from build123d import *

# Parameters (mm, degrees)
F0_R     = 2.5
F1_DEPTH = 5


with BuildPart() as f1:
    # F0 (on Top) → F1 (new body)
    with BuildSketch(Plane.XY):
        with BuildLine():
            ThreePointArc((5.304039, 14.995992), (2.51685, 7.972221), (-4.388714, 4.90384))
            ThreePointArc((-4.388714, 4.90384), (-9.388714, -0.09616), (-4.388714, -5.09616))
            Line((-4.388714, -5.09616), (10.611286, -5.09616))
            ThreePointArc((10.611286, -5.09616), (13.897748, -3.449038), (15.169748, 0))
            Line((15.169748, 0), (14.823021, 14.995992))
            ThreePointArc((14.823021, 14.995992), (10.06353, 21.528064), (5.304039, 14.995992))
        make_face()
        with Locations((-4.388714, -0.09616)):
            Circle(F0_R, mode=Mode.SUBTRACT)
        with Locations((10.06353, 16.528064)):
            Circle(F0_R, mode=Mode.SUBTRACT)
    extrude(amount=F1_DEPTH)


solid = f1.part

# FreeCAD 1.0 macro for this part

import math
import FreeCAD as App
import Part
import Sketcher
Q = App.Units.Quantity

doc = App.newDocument("Part")
body = doc.addObject("PartDesign::Body", "Body")

# Sketch on XY plane
sketch1 = body.newObject("Sketcher::SketchObject", "Sketch")
sketch1.AttachmentSupport = (doc.getObject("XY_Plane"), [""])
sketch1.MapMode = "FlatFace"
sketch1.addGeometry([
    Part.ArcOfCircle(Part.Circle(App.Vector(-4.695493, 14.899135, 0), App.Vector(0, 0, 1), 10.000001), math.radians(-88.242009), math.radians(0.554961)),  # 0
    Part.ArcOfCircle(Part.Circle(App.Vector(-4.388714, -0.09616, 0), App.Vector(0, 0, 1), 5), math.radians(90), math.radians(270)),  # 1
    Part.LineSegment(App.Vector(-4.388714, -5.09616, 0), App.Vector(10.611286, -5.09616, 0)),  # 2
    Part.ArcOfCircle(Part.Circle(App.Vector(10.171083, -0.115575, 0), App.Vector(0, 0, 1), 5.000001), math.radians(-84.949109), math.radians(1.324508)),  # 3
    Part.LineSegment(App.Vector(15.169748, 0, 0), App.Vector(14.823021, 14.995992, 0)),  # 4
    Part.ArcOfCircle(Part.Circle(App.Vector(10.06353, 16.528064, 0), App.Vector(0, 0, 1), 5), math.radians(-17.843279), math.radians(197.843279)),  # 5
    Part.Circle(App.Vector(-4.388714, -0.09616, 0), App.Vector(0, 0, 1), 2.5),  # 6
    Part.Circle(App.Vector(10.06353, 16.528064, 0), App.Vector(0, 0, 1), 2.5),  # 7
], False)
sketch1.addConstraint([
    Sketcher.Constraint("Coincident", 0, 1, 1, 1),
    Sketcher.Constraint("Coincident", 1, 2, 2, 1),
    Sketcher.Constraint("Coincident", 2, 2, 3, 1),
    Sketcher.Constraint("Coincident", 3, 2, 4, 1),
    Sketcher.Constraint("Coincident", 4, 2, 5, 1),
    Sketcher.Constraint("Coincident", 5, 2, 0, 2),
    Sketcher.Constraint("Horizontal", 2),
    Sketcher.Constraint("Coincident", 6, 3, 1, 3),
    Sketcher.Constraint("Coincident", 7, 3, 5, 3),
    Sketcher.Constraint("PointOnObject", 3, 2, -1),
    Sketcher.Constraint("Diameter", 6, Q("5 mm")),
    Sketcher.Constraint("Diameter", 7, Q("5 mm")),
    Sketcher.Constraint("Radius", 0, Q("10.000001 mm")),
    Sketcher.Constraint("Radius", 1, Q("5 mm")),
    Sketcher.Constraint("Radius", 3, Q("5.000001 mm")),
    Sketcher.Constraint("Radius", 5, Q("5 mm")),
    Sketcher.Constraint("DistanceX", 2, 1, 2, 2, Q("15 mm")),
    Sketcher.Constraint("Distance", 4, Q("15 mm")),
    Sketcher.Constraint("DistanceX", 1, 3, 2, 2, Q("15 mm")),
    Sketcher.Constraint("DistanceX", 0, 1, 2, 2, Q("15 mm")),
    Sketcher.Constraint("DistanceY", 1, 3, -1, 1, Q("0.09616 mm")),
    Sketcher.Constraint("DistanceX", -1, 1, 5, 3, Q("10.06353 mm")),
    Sketcher.Constraint("DistanceX", -1, 1, 4, 2, Q("14.823021 mm")),
    Sketcher.Constraint("DistanceY", -1, 1, 4, 2, Q("14.995992 mm")),
    Sketcher.Constraint("DistanceX", -1, 1, 5, 2, Q("5.304039 mm")),
    Sketcher.Constraint("DistanceX", 0, 3, 1, 3, Q("0.306779 mm")),
])
pad1 = body.newObject("PartDesign::Pad", "Pad")
pad1.Profile = sketch1
pad1.Length = 5

doc.recompute()
